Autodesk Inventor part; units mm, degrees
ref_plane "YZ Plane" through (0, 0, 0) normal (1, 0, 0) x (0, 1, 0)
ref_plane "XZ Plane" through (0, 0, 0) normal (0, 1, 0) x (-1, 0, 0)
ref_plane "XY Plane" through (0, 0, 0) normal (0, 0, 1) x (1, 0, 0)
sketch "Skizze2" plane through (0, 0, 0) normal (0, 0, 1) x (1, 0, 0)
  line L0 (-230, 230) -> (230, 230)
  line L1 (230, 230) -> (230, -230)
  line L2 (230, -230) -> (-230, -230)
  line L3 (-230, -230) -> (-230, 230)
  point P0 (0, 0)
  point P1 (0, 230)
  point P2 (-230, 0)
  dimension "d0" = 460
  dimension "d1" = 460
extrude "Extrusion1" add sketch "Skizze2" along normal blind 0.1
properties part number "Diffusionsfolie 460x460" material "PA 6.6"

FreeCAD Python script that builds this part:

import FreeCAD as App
import Part
import Sketcher
from FreeCAD import Vector
Q = App.Units.Quantity


def add_polygon(sketch, points):
    """Adds a closed chain of lines whose ends are joined by coincident constraints."""
    first, n = sketch.GeometryCount, len(points)
    for a, b in zip(points, points[1:] + points[:1]):
        sketch.addGeometry(Part.LineSegment(App.Vector(*a, 0), App.Vector(*b, 0)), False)
    for i in range(n):
        sketch.addConstraint(Sketcher.Constraint("Coincident", first + i, 2, first + (i + 1) % n, 1))

doc = App.newDocument("Part")
params = doc.addObject("Spreadsheet::Sheet", "Params")
for row, (alias, value) in enumerate([
    ("sketch1_width", "460 mm"),
    ("pad1_length", "0.1 mm"),
], start=1):
    params.set(f"A{row}", alias)
    params.set(f"B{row}", "=" + value)
    params.setAlias(f"B{row}", alias)

body = doc.addObject("PartDesign::Body", "Body")

# Sketch on XY plane
sketch1 = body.newObject("Sketcher::SketchObject", "Sketch")
sketch1.AttachmentSupport = (doc.getObject("XY_Plane"), [""])
sketch1.MapMode = "FlatFace"
add_polygon(sketch1, [(230, 230), (-230, 230), (-230, -230), (230, -230)])  # lines 0-3
sketch1.addConstraint([
    Sketcher.Constraint("Horizontal", 0),
    Sketcher.Constraint("Vertical", 1),
    Sketcher.Constraint("Horizontal", 2),
    Sketcher.Constraint("Vertical", 3),
    Sketcher.Constraint("Symmetric", 0, 2, 2, 2, -1, 1),
    Sketcher.Constraint("Equal", 2, 1),
    Sketcher.Constraint("DistanceX", 0, 2, 0, 1, Q("460 mm")),
])
sketch1.setExpression("Constraints[10]", "Params.sketch1_width")
pad1 = body.newObject("PartDesign::Pad", "Pad")
pad1.Profile = sketch1
pad1.setExpression("Length", "Params.pad1_length")

doc.recompute()
